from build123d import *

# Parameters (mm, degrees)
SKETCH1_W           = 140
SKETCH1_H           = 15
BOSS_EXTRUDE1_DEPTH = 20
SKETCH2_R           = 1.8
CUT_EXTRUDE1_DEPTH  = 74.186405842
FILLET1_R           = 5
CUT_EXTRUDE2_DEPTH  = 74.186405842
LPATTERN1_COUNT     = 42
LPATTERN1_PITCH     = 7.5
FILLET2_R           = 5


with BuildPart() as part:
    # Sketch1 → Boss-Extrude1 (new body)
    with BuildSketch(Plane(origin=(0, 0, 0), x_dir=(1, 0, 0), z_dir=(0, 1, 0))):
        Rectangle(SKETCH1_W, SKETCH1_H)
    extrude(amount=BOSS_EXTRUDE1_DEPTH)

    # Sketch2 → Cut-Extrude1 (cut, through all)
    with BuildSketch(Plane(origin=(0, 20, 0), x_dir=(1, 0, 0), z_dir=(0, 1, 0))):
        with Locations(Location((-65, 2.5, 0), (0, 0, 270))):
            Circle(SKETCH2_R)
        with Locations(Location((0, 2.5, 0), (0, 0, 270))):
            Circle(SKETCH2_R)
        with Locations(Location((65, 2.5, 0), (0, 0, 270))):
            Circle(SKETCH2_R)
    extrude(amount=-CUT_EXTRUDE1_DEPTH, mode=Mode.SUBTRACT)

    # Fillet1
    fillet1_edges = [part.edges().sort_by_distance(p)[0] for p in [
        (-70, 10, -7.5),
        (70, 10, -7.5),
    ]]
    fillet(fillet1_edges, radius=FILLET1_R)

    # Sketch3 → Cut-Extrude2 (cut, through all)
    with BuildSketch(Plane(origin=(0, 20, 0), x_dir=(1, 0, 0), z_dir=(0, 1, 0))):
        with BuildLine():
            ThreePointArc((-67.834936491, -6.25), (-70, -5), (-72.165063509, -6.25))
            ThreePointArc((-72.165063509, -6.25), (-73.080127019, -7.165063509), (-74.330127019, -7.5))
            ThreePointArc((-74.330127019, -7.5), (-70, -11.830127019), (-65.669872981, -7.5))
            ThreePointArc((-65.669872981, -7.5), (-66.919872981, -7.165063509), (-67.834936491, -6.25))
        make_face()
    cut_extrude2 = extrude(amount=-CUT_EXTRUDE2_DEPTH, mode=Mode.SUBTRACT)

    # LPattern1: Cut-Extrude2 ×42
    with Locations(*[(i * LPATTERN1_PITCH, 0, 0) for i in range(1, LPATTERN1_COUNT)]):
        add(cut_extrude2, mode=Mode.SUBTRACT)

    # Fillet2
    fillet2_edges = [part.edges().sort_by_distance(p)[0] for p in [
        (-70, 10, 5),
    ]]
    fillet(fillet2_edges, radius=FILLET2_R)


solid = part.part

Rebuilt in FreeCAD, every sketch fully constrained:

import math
import FreeCAD as App
import Part
import Sketcher

V = App.Vector
Q = App.Units.Quantity


def edges_at(feature, points):
    """Names of the edges that pass closest to the given points."""
    edges = feature.Shape.Edges
    near = lambda p: min(range(len(edges)), key=lambda i: edges[i].distToShape(Part.Vertex(*p))[0])
    return sorted({f"Edge{near(p) + 1}" for p in points})


def add_polygon(sketch, points):
    """Adds a closed chain of lines whose ends are joined by coincident constraints."""
    first, n = sketch.GeometryCount, len(points)
    for a, b in zip(points, points[1:] + points[:1]):
        sketch.addGeometry(Part.LineSegment(App.Vector(*a, 0), App.Vector(*b, 0)), False)
    for i in range(n):
        sketch.addConstraint(Sketcher.Constraint("Coincident", first + i, 2, first + (i + 1) % n, 1))

doc = App.newDocument("Part")
body = doc.addObject("PartDesign::Body", "Body")

# Sketch on XZ plane
sketch1 = body.newObject("Sketcher::SketchObject", "Sketch")
sketch1.AttachmentSupport = (doc.getObject("XZ_Plane"), [""])
sketch1.MapMode = "FlatFace"
add_polygon(sketch1, [(-70, -8), (-70, 8), (70, 8), (70, -8)])  # lines 0-3
sketch1.addConstraint([
    Sketcher.Constraint("Vertical", 0),
    Sketcher.Constraint("Horizontal", 1),
    Sketcher.Constraint("Vertical", 2),
    Sketcher.Constraint("Horizontal", 3),
    Sketcher.Constraint("Symmetric", 0, 2, 2, 2, -1, 1),
    Sketcher.Constraint("DistanceX", 1, 1, 1, 2, Q("140 mm")),
    Sketcher.Constraint("DistanceY", 0, 1, 0, 2, Q("15 mm")),
])
pad1 = body.newObject("PartDesign::Pad", "Pad")
pad1.Profile = sketch1
pad1.Length = 20
pad1.Reversed = True

# Sketch on XZ plane
sketch2 = body.newObject("Sketcher::SketchObject", "Sketch001")
sketch2.AttachmentSupport = (doc.getObject("XZ_Plane"), [""])
sketch2.MapMode = "FlatFace"
sketch2.AttachmentOffset = App.Placement(V(0, 0, -20), App.Rotation())
sketch2.addGeometry([
    Part.Circle(V(-65, -2.5, 0), V(0, 0, 1), 1.8),
    Part.Circle(V(0, -2.5, 0), V(0, 0, 1), 1.8),
    Part.Circle(V(65, -2.5, 0), V(0, 0, 1), 1.8),
], False)
sketch2.addConstraint([
    Sketcher.Constraint("Equal", 0, 1),
    Sketcher.Constraint("Equal", 1, 2),
    Sketcher.Constraint("Symmetric", 0, 3, 2, 3, -2),
    Sketcher.Constraint("PointOnObject", 1, 3, -2),
    Sketcher.Constraint("Horizontal", 0, 3, 1, 3),
    Sketcher.Constraint("Diameter", 0, Q("3.6 mm")),
    Sketcher.Constraint("DistanceX", 0, 3, -1, 1, Q("65 mm")),
    Sketcher.Constraint("DistanceY", 0, 3, -1, 1, Q("2.5 mm")),
])
pocket1 = body.newObject("PartDesign::Pocket", "Pocket")
pocket1.Profile = sketch2
pocket1.Type = "ThroughAll"
pocket1.Reversed = True
doc.recompute()

fillet = body.newObject("PartDesign::Fillet", "Fillet")
fillet.Base = (pocket1, edges_at(pocket1, [(-70, 10, -7.5), (70, 10, -7.5)]))
fillet.Radius = 5

# Sketch on XZ plane
sketch3 = body.newObject("Sketcher::SketchObject", "Sketch002")
sketch3.AttachmentSupport = (doc.getObject("XZ_Plane"), [""])
sketch3.MapMode = "FlatFace"
sketch3.AttachmentOffset = App.Placement(V(0, 0, -20), App.Rotation())
sketch3.addGeometry([
    Part.ArcOfCircle(Part.Circle(V(-70, 7.5, 0), V(0, 0, 1), 2.5), math.radians(-150), math.radians(-30)),
    Part.ArcOfCircle(Part.Circle(V(-74.3, 5, 0), V(0, 0, 1), 2.5), math.radians(30), math.radians(90)),
    Part.ArcOfCircle(Part.Circle(V(-70, 7.5, 0), V(0, 0, 1), 4.3), math.radians(0), math.radians(180)),
    Part.ArcOfCircle(Part.Circle(V(-65.7, 5, 0), V(0, 0, 1), 2.5), math.radians(90), math.radians(150)),
], False)
sketch3.addConstraint([
    Sketcher.Constraint("Tangent", 0, 1, 1, 1),
    Sketcher.Constraint("Coincident", 1, 2, 2, 2),
    Sketcher.Constraint("Coincident", 2, 1, 3, 1),
    Sketcher.Constraint("Tangent", 3, 2, 0, 2),
    Sketcher.Constraint("Coincident", 2, 3, 0, 3),
    Sketcher.Constraint("Equal", 0, 1),
    Sketcher.Constraint("Equal", 1, 3),
    Sketcher.Constraint("Horizontal", 1, 3, 3, 3),
    Sketcher.Constraint("Horizontal", 2, 3, 1, 2),
    Sketcher.Constraint("Vertical", 3, 3, 2, 1),
    Sketcher.Constraint("Radius", 0, Q("2.5 mm")),
    Sketcher.Constraint("DistanceX", 0, 3, -1, 1, Q("70 mm")),
    Sketcher.Constraint("DistanceY", -1, 1, 1, 3, Q("5 mm")),
])
pocket2 = body.newObject("PartDesign::Pocket", "Pocket001")
pocket2.Profile = sketch3
pocket2.Type = "ThroughAll"
pocket2.Reversed = True
doc.recompute()

linearpattern = body.newObject("PartDesign::LinearPattern", "LinearPattern")
linearpattern.Originals = [pocket2]
linearpattern.Direction = (doc.getObject("X_Axis"), [""])
linearpattern.Mode = "offset"
linearpattern.Offset = 7.5
linearpattern.Occurrences = 42
body.Tip = linearpattern
doc.recompute()

fillet2 = body.newObject("PartDesign::Fillet", "Fillet001")
fillet2.Base = (linearpattern, edges_at(linearpattern, [(-70, 10, 5)]))
fillet2.Radius = 5

doc.recompute()
